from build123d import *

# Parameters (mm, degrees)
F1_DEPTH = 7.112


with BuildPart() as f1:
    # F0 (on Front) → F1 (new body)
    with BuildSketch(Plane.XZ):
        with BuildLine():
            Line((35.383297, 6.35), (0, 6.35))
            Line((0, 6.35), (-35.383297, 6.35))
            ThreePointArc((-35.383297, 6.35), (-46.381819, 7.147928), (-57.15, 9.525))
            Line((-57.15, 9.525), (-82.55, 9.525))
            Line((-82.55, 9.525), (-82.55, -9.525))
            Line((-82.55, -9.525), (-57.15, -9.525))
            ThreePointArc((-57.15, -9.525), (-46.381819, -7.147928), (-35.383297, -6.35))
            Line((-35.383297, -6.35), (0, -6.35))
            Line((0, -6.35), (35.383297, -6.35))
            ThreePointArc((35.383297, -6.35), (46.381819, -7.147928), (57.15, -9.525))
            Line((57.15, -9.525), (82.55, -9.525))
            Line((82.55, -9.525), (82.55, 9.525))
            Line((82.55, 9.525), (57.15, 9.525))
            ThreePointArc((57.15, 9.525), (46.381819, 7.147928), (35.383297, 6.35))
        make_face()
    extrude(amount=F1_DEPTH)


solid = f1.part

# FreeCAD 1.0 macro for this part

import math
import FreeCAD as App
import Part
import Sketcher
Q = App.Units.Quantity

doc = App.newDocument("Part")
body = doc.addObject("PartDesign::Body", "Body")

# Sketch on XZ plane
sketch1 = body.newObject("Sketcher::SketchObject", "Sketch")
sketch1.AttachmentSupport = (doc.getObject("XZ_Plane"), [""])
sketch1.MapMode = "FlatFace"
sketch1.addGeometry([
    Part.LineSegment(App.Vector(35, 6, 0), App.Vector(-35, 6, 0)),  # 0
    Part.ArcOfCircle(Part.Circle(App.Vector(-35, 83, 0), App.Vector(0, 0, 1), 76), math.radians(-106.6), math.radians(-90)),  # 1
    Part.LineSegment(App.Vector(-57, 10, 0), App.Vector(-83, 10, 0)),  # 2
    Part.LineSegment(App.Vector(-83, 10, 0), App.Vector(-83, -10, 0)),  # 3
    Part.LineSegment(App.Vector(-83, -10, 0), App.Vector(-57, -10, 0)),  # 4
    Part.ArcOfCircle(Part.Circle(App.Vector(-35, -83, 0), App.Vector(0, 0, 1), 76), math.radians(90), math.radians(106.6)),  # 5
    Part.LineSegment(App.Vector(-35, -6, 0), App.Vector(35, -6, 0)),  # 6
    Part.ArcOfCircle(Part.Circle(App.Vector(35, -83, 0), App.Vector(0, 0, 1), 76), math.radians(73.4), math.radians(90)),  # 7
    Part.LineSegment(App.Vector(57, -10, 0), App.Vector(83, -10, 0)),  # 8
    Part.LineSegment(App.Vector(83, -10, 0), App.Vector(83, 10, 0)),  # 9
    Part.LineSegment(App.Vector(83, 10, 0), App.Vector(57, 10, 0)),  # 10
    Part.ArcOfCircle(Part.Circle(App.Vector(35, 83, 0), App.Vector(0, 0, 1), 76), math.radians(-90), math.radians(-73.4)),  # 11
], False)
sketch1.addConstraint([
    Sketcher.Constraint("Tangent", 0, 2, 1, 2),
    Sketcher.Constraint("Coincident", 1, 1, 2, 1),
    Sketcher.Constraint("Coincident", 2, 2, 3, 1),
    Sketcher.Constraint("Coincident", 3, 2, 4, 1),
    Sketcher.Constraint("Coincident", 4, 2, 5, 2),
    Sketcher.Constraint("Tangent", 5, 1, 6, 1),
    Sketcher.Constraint("Tangent", 6, 2, 7, 2),
    Sketcher.Constraint("Coincident", 7, 1, 8, 1),
    Sketcher.Constraint("Coincident", 8, 2, 9, 1),
    Sketcher.Constraint("Coincident", 9, 2, 10, 1),
    Sketcher.Constraint("Coincident", 10, 2, 11, 2),
    Sketcher.Constraint("Tangent", 11, 1, 0, 1),
    Sketcher.Constraint("Horizontal", 0),
    Sketcher.Constraint("Horizontal", 2),
    Sketcher.Constraint("Vertical", 3),
    Sketcher.Constraint("Horizontal", 4),
    Sketcher.Constraint("Horizontal", 6),
    Sketcher.Constraint("Horizontal", 8),
    Sketcher.Constraint("Vertical", 9),
    Sketcher.Constraint("Horizontal", 10),
    Sketcher.Constraint("Equal", 1, 5),
    Sketcher.Constraint("Equal", 5, 7),
    Sketcher.Constraint("Equal", 7, 11),
    Sketcher.Constraint("Symmetric", 1, 3, 7, 3, -1, 1),
    Sketcher.Constraint("Symmetric", 2, 2, 8, 2, -1, 1),
    Sketcher.Constraint("Symmetric", 4, 2, 10, 2, -1, 1),
    Sketcher.Constraint("Symmetric", 4, 2, 7, 1, -2),
    Sketcher.Constraint("DistanceX", 2, 2, 2, 1, Q("1 in")),
    Sketcher.Constraint("DistanceY", 3, 2, 3, 1, Q("0.75 in")),
    Sketcher.Constraint("DistanceY", 5, 1, 0, 2, Q("0.5 in")),
    Sketcher.Constraint("DistanceX", 1, 1, -1, 1, Q("2.25 in")),
    Sketcher.Constraint("Radius", 1, 76.200027),
])
pad1 = body.newObject("PartDesign::Pad", "Pad")
pad1.Profile = sketch1
pad1.Length = Q("0.28 in")

doc.recompute()
